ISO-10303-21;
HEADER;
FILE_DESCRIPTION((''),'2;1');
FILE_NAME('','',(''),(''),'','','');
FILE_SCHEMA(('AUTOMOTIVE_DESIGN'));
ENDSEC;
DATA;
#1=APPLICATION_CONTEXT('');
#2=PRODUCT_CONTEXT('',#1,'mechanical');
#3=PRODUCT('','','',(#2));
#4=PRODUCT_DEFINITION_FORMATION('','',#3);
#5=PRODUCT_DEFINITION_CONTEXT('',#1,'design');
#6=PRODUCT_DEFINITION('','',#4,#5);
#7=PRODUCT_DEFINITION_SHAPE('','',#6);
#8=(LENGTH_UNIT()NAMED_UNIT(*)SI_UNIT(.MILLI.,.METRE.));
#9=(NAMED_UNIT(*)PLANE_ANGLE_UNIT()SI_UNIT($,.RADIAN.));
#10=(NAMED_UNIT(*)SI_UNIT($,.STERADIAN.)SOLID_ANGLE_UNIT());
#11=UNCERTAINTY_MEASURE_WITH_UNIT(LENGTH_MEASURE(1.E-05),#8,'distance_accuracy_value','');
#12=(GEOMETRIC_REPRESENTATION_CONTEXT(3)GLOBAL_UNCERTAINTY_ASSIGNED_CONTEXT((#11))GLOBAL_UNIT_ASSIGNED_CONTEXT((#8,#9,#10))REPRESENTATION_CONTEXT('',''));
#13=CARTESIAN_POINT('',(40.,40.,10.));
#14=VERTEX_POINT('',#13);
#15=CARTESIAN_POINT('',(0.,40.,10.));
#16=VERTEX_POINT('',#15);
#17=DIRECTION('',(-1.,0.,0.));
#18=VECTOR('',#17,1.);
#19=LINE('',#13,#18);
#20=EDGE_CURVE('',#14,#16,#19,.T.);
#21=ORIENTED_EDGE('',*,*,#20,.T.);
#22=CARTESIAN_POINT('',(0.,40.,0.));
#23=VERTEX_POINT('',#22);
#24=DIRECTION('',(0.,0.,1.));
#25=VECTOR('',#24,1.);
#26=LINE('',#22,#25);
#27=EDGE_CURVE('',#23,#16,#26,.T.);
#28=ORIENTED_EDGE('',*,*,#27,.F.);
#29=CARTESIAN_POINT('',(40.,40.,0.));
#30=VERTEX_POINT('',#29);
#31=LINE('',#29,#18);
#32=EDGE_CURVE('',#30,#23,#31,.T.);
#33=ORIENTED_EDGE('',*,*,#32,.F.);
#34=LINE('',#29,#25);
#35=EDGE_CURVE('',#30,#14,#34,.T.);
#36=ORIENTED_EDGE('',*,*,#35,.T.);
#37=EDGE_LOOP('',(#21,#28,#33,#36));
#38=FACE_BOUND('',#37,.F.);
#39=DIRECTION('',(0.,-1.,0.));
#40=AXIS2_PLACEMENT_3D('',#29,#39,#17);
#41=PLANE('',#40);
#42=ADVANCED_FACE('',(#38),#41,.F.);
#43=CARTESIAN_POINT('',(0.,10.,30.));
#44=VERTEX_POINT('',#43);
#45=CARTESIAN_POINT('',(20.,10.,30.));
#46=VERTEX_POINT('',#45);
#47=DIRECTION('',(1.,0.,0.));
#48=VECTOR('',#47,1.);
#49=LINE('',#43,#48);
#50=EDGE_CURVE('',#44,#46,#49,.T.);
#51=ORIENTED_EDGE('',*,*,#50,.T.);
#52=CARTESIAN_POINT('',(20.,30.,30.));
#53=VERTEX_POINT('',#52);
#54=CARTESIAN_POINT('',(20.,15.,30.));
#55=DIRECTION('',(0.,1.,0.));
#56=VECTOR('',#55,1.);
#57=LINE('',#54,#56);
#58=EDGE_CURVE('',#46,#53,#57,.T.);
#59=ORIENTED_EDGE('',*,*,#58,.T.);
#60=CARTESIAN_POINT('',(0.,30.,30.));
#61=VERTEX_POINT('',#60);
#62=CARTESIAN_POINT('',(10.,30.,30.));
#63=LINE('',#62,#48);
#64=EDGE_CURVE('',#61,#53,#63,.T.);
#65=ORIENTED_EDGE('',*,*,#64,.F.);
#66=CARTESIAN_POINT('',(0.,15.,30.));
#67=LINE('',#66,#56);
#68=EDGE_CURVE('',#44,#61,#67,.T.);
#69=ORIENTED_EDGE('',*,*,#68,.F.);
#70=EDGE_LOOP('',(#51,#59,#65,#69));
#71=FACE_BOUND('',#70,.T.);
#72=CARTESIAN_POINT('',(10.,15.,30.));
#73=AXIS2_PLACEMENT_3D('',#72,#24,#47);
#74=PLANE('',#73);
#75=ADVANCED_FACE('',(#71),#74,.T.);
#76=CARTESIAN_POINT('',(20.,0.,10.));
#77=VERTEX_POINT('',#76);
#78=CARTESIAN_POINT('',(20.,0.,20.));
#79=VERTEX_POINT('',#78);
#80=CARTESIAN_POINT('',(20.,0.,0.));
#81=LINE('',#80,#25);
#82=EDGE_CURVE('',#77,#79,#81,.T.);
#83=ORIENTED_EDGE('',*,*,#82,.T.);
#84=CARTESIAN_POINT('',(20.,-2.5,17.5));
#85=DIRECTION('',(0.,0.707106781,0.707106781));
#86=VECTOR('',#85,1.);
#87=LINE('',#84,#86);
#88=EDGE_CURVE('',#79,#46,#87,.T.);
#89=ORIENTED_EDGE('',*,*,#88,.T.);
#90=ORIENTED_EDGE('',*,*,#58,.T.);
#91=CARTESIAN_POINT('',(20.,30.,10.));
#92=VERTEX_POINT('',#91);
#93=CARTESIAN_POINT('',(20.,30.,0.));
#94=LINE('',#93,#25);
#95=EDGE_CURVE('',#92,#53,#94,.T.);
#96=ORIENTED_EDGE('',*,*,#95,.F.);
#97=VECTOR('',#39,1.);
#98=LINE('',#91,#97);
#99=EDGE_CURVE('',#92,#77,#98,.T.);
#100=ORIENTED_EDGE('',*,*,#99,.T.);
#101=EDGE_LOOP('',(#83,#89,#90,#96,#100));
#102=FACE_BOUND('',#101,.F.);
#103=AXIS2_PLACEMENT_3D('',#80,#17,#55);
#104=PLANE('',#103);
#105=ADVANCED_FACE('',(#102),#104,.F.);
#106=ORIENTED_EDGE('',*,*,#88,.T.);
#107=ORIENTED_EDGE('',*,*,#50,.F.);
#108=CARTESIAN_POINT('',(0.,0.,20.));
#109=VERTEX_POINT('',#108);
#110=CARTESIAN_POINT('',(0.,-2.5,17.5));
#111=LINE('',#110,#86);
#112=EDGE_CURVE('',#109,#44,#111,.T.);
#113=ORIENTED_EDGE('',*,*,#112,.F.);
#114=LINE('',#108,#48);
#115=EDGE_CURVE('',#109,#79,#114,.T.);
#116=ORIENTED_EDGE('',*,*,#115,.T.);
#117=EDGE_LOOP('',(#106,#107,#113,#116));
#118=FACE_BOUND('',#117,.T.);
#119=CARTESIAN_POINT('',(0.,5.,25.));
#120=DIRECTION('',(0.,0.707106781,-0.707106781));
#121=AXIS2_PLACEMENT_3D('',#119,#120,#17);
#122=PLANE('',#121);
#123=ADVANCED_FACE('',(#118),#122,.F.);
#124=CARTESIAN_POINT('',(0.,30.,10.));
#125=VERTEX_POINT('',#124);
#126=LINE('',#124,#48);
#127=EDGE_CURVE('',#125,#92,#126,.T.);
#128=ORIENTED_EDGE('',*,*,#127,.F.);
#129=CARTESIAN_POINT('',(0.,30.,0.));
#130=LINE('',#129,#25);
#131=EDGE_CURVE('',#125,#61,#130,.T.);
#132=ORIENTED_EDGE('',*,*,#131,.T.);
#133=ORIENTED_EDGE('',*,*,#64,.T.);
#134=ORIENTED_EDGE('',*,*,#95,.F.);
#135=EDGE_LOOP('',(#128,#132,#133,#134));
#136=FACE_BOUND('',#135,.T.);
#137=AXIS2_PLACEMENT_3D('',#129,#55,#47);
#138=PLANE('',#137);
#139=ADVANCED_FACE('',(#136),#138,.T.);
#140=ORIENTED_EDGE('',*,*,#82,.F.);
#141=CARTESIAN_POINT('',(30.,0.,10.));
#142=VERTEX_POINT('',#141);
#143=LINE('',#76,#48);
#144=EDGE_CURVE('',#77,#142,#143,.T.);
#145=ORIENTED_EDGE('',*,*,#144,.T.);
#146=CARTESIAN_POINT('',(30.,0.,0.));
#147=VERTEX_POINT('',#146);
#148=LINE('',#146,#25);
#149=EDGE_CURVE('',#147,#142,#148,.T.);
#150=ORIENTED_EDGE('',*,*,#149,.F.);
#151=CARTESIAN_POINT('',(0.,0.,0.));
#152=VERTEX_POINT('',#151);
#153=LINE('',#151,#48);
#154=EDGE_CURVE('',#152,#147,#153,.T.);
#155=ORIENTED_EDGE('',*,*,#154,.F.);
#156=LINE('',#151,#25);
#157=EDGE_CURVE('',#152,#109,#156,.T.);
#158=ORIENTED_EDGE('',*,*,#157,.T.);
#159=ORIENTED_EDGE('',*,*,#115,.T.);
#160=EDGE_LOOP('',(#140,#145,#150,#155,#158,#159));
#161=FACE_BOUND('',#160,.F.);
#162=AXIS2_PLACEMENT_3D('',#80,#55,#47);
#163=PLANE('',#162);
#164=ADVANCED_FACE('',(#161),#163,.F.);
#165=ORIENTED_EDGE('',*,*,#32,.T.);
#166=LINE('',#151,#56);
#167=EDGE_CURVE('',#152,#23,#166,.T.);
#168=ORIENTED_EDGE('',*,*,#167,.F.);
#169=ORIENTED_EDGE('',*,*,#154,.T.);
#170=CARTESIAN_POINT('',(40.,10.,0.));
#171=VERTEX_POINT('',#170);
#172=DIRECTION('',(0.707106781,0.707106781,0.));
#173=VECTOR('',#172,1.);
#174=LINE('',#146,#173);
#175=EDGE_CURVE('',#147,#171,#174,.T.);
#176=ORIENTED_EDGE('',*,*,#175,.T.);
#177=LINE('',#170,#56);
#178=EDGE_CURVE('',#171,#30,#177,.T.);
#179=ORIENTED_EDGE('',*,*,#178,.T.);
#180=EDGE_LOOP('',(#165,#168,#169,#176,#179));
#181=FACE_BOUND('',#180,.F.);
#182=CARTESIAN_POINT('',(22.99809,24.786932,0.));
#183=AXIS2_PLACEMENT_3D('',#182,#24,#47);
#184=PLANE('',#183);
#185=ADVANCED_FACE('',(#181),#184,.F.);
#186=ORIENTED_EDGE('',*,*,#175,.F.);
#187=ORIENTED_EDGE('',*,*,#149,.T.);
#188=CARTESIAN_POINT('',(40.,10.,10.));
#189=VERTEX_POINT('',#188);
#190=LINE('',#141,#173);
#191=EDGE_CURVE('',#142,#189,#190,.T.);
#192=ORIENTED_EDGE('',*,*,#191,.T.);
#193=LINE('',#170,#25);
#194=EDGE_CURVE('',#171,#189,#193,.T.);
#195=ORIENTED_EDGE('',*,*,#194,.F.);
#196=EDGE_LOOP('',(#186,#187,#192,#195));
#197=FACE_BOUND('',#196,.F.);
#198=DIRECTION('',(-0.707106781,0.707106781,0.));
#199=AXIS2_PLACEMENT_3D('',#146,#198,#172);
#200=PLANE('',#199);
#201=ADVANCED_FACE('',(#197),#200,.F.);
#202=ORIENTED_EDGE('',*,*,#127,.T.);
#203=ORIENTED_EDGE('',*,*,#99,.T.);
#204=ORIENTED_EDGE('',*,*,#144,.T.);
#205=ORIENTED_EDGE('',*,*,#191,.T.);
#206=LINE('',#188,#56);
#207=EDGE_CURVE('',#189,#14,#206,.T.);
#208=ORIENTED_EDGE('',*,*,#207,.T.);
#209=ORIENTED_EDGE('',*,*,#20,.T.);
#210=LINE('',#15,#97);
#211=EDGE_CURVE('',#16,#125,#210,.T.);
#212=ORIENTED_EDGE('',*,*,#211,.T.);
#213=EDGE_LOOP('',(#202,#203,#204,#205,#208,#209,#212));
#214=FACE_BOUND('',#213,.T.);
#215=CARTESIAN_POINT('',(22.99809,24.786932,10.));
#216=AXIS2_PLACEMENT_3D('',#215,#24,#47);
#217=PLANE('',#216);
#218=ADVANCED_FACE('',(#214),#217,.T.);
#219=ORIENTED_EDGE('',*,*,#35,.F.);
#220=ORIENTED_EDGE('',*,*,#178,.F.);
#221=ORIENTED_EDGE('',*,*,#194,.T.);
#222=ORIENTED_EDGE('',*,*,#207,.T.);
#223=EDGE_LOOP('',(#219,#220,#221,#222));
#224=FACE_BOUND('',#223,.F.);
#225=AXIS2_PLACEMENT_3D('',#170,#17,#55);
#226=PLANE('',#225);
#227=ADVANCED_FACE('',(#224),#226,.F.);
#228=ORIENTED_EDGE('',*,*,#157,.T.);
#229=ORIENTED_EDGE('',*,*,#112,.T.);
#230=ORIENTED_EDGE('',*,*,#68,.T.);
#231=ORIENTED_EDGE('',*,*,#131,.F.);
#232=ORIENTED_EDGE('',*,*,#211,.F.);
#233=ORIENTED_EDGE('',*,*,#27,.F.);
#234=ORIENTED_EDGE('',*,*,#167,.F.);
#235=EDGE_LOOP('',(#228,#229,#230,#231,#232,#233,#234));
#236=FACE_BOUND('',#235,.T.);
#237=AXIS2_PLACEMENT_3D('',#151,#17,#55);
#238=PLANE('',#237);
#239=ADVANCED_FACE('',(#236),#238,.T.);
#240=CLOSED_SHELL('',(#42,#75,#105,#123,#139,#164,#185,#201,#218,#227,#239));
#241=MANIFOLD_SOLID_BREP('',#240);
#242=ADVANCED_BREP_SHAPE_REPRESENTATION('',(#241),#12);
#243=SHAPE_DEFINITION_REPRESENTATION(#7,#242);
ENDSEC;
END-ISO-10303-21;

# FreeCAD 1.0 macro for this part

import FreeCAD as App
import Part
import Sketcher

V = App.Vector
Q = App.Units.Quantity


def edges_at(feature, points):
    """Names of the edges that pass closest to the given points."""
    edges = feature.Shape.Edges
    near = lambda p: min(range(len(edges)), key=lambda i: edges[i].distToShape(Part.Vertex(*p))[0])
    return sorted({f"Edge{near(p) + 1}" for p in points})

doc = App.newDocument("Part")
body = doc.addObject("PartDesign::Body", "Body")

# Sketch on XY plane
sketch1 = body.newObject("Sketcher::SketchObject", "Sketch")
sketch1.AttachmentSupport = (doc.getObject("XY_Plane"), [""])
sketch1.MapMode = "FlatFace"
sketch1.addGeometry(Part.LineSegment(V(0, 30, 0), V(0, 0, 0)), False)
sketch1.addGeometry(Part.LineSegment(V(0, 0, 0), V(20, 0, 0)), False)
sketch1.addGeometry(Part.LineSegment(V(20, 0, 0), V(20, 30, 0)), False)
sketch1.addGeometry(Part.LineSegment(V(20, 30, 0), V(0, 30, 0)), False)
sketch1.addConstraint(Sketcher.Constraint("Coincident", 0, 2, 1, 1))
sketch1.addConstraint(Sketcher.Constraint("Coincident", 1, 2, 2, 1))
sketch1.addConstraint(Sketcher.Constraint("Coincident", 2, 2, 3, 1))
sketch1.addConstraint(Sketcher.Constraint("Coincident", 3, 2, 0, 1))
sketch1.addConstraint(Sketcher.Constraint("Vertical", 0))
sketch1.addConstraint(Sketcher.Constraint("Horizontal", 1))
sketch1.addConstraint(Sketcher.Constraint("Vertical", 2))
sketch1.addConstraint(Sketcher.Constraint("Horizontal", 3))
sketch1.addConstraint(Sketcher.Constraint("Coincident", 0, 2, -1, 1))
sketch1.addConstraint(Sketcher.Constraint("DistanceX", 1, 1, 1, 2, Q("20 mm")))
sketch1.addConstraint(Sketcher.Constraint("DistanceY", 0, 2, 0, 1, Q("30 mm")))
pad1 = body.newObject("PartDesign::Pad", "Pad")
pad1.Profile = sketch1
pad1.Length = 30

# Sketch on XY plane
sketch2 = body.newObject("Sketcher::SketchObject", "Sketch001")
sketch2.AttachmentSupport = (doc.getObject("XY_Plane"), [""])
sketch2.MapMode = "FlatFace"
sketch2.addGeometry(Part.LineSegment(V(20, 30, 0), V(20, 0, 0)), False)
sketch2.addGeometry(Part.LineSegment(V(20, 0, 0), V(30, 0, 0)), False)
sketch2.addGeometry(Part.LineSegment(V(30, 0, 0), V(40, 10, 0)), False)
sketch2.addGeometry(Part.LineSegment(V(40, 10, 0), V(40, 40, 0)), False)
sketch2.addGeometry(Part.LineSegment(V(40, 40, 0), V(0, 40, 0)), False)
sketch2.addGeometry(Part.LineSegment(V(0, 40, 0), V(0, 30, 0)), False)
sketch2.addGeometry(Part.LineSegment(V(0, 30, 0), V(20, 30, 0)), False)
sketch2.addConstraint(Sketcher.Constraint("Coincident", 0, 2, 1, 1))
sketch2.addConstraint(Sketcher.Constraint("Coincident", 1, 2, 2, 1))
sketch2.addConstraint(Sketcher.Constraint("Coincident", 2, 2, 3, 1))
sketch2.addConstraint(Sketcher.Constraint("Coincident", 3, 2, 4, 1))
sketch2.addConstraint(Sketcher.Constraint("Coincident", 4, 2, 5, 1))
sketch2.addConstraint(Sketcher.Constraint("Coincident", 5, 2, 6, 1))
sketch2.addConstraint(Sketcher.Constraint("Coincident", 6, 2, 0, 1))
sketch2.addConstraint(Sketcher.Constraint("Vertical", 0))
sketch2.addConstraint(Sketcher.Constraint("Horizontal", 1))
sketch2.addConstraint(Sketcher.Constraint("Vertical", 3))
sketch2.addConstraint(Sketcher.Constraint("Horizontal", 4))
sketch2.addConstraint(Sketcher.Constraint("Vertical", 5))
sketch2.addConstraint(Sketcher.Constraint("Horizontal", 6))
sketch2.addConstraint(Sketcher.Constraint("PointOnObject", 0, 2, -1))
sketch2.addConstraint(Sketcher.Constraint("PointOnObject", 4, 2, -2))
sketch2.addConstraint(Sketcher.Constraint("Equal", 0, 3))
sketch2.addConstraint(Sketcher.Constraint("Equal", 1, 5))
sketch2.addConstraint(Sketcher.Constraint("DistanceX", 1, 1, 1, 2, Q("10 mm")))
sketch2.addConstraint(Sketcher.Constraint("DistanceX", 4, 2, 4, 1, Q("40 mm")))
sketch2.addConstraint(Sketcher.Constraint("DistanceX", 6, 1, 6, 2, Q("20 mm")))
sketch2.addConstraint(Sketcher.Constraint("DistanceY", 0, 2, 0, 1, Q("30 mm")))
pad2 = body.newObject("PartDesign::Pad", "Pad001")
pad2.Profile = sketch2
pad2.Length = 10
doc.recompute()

chamfer = body.newObject("PartDesign::Chamfer", "Chamfer")
chamfer.Base = (pad2, edges_at(pad2, [(10, 0, 30)]))
chamfer.Size = 10

doc.recompute()
